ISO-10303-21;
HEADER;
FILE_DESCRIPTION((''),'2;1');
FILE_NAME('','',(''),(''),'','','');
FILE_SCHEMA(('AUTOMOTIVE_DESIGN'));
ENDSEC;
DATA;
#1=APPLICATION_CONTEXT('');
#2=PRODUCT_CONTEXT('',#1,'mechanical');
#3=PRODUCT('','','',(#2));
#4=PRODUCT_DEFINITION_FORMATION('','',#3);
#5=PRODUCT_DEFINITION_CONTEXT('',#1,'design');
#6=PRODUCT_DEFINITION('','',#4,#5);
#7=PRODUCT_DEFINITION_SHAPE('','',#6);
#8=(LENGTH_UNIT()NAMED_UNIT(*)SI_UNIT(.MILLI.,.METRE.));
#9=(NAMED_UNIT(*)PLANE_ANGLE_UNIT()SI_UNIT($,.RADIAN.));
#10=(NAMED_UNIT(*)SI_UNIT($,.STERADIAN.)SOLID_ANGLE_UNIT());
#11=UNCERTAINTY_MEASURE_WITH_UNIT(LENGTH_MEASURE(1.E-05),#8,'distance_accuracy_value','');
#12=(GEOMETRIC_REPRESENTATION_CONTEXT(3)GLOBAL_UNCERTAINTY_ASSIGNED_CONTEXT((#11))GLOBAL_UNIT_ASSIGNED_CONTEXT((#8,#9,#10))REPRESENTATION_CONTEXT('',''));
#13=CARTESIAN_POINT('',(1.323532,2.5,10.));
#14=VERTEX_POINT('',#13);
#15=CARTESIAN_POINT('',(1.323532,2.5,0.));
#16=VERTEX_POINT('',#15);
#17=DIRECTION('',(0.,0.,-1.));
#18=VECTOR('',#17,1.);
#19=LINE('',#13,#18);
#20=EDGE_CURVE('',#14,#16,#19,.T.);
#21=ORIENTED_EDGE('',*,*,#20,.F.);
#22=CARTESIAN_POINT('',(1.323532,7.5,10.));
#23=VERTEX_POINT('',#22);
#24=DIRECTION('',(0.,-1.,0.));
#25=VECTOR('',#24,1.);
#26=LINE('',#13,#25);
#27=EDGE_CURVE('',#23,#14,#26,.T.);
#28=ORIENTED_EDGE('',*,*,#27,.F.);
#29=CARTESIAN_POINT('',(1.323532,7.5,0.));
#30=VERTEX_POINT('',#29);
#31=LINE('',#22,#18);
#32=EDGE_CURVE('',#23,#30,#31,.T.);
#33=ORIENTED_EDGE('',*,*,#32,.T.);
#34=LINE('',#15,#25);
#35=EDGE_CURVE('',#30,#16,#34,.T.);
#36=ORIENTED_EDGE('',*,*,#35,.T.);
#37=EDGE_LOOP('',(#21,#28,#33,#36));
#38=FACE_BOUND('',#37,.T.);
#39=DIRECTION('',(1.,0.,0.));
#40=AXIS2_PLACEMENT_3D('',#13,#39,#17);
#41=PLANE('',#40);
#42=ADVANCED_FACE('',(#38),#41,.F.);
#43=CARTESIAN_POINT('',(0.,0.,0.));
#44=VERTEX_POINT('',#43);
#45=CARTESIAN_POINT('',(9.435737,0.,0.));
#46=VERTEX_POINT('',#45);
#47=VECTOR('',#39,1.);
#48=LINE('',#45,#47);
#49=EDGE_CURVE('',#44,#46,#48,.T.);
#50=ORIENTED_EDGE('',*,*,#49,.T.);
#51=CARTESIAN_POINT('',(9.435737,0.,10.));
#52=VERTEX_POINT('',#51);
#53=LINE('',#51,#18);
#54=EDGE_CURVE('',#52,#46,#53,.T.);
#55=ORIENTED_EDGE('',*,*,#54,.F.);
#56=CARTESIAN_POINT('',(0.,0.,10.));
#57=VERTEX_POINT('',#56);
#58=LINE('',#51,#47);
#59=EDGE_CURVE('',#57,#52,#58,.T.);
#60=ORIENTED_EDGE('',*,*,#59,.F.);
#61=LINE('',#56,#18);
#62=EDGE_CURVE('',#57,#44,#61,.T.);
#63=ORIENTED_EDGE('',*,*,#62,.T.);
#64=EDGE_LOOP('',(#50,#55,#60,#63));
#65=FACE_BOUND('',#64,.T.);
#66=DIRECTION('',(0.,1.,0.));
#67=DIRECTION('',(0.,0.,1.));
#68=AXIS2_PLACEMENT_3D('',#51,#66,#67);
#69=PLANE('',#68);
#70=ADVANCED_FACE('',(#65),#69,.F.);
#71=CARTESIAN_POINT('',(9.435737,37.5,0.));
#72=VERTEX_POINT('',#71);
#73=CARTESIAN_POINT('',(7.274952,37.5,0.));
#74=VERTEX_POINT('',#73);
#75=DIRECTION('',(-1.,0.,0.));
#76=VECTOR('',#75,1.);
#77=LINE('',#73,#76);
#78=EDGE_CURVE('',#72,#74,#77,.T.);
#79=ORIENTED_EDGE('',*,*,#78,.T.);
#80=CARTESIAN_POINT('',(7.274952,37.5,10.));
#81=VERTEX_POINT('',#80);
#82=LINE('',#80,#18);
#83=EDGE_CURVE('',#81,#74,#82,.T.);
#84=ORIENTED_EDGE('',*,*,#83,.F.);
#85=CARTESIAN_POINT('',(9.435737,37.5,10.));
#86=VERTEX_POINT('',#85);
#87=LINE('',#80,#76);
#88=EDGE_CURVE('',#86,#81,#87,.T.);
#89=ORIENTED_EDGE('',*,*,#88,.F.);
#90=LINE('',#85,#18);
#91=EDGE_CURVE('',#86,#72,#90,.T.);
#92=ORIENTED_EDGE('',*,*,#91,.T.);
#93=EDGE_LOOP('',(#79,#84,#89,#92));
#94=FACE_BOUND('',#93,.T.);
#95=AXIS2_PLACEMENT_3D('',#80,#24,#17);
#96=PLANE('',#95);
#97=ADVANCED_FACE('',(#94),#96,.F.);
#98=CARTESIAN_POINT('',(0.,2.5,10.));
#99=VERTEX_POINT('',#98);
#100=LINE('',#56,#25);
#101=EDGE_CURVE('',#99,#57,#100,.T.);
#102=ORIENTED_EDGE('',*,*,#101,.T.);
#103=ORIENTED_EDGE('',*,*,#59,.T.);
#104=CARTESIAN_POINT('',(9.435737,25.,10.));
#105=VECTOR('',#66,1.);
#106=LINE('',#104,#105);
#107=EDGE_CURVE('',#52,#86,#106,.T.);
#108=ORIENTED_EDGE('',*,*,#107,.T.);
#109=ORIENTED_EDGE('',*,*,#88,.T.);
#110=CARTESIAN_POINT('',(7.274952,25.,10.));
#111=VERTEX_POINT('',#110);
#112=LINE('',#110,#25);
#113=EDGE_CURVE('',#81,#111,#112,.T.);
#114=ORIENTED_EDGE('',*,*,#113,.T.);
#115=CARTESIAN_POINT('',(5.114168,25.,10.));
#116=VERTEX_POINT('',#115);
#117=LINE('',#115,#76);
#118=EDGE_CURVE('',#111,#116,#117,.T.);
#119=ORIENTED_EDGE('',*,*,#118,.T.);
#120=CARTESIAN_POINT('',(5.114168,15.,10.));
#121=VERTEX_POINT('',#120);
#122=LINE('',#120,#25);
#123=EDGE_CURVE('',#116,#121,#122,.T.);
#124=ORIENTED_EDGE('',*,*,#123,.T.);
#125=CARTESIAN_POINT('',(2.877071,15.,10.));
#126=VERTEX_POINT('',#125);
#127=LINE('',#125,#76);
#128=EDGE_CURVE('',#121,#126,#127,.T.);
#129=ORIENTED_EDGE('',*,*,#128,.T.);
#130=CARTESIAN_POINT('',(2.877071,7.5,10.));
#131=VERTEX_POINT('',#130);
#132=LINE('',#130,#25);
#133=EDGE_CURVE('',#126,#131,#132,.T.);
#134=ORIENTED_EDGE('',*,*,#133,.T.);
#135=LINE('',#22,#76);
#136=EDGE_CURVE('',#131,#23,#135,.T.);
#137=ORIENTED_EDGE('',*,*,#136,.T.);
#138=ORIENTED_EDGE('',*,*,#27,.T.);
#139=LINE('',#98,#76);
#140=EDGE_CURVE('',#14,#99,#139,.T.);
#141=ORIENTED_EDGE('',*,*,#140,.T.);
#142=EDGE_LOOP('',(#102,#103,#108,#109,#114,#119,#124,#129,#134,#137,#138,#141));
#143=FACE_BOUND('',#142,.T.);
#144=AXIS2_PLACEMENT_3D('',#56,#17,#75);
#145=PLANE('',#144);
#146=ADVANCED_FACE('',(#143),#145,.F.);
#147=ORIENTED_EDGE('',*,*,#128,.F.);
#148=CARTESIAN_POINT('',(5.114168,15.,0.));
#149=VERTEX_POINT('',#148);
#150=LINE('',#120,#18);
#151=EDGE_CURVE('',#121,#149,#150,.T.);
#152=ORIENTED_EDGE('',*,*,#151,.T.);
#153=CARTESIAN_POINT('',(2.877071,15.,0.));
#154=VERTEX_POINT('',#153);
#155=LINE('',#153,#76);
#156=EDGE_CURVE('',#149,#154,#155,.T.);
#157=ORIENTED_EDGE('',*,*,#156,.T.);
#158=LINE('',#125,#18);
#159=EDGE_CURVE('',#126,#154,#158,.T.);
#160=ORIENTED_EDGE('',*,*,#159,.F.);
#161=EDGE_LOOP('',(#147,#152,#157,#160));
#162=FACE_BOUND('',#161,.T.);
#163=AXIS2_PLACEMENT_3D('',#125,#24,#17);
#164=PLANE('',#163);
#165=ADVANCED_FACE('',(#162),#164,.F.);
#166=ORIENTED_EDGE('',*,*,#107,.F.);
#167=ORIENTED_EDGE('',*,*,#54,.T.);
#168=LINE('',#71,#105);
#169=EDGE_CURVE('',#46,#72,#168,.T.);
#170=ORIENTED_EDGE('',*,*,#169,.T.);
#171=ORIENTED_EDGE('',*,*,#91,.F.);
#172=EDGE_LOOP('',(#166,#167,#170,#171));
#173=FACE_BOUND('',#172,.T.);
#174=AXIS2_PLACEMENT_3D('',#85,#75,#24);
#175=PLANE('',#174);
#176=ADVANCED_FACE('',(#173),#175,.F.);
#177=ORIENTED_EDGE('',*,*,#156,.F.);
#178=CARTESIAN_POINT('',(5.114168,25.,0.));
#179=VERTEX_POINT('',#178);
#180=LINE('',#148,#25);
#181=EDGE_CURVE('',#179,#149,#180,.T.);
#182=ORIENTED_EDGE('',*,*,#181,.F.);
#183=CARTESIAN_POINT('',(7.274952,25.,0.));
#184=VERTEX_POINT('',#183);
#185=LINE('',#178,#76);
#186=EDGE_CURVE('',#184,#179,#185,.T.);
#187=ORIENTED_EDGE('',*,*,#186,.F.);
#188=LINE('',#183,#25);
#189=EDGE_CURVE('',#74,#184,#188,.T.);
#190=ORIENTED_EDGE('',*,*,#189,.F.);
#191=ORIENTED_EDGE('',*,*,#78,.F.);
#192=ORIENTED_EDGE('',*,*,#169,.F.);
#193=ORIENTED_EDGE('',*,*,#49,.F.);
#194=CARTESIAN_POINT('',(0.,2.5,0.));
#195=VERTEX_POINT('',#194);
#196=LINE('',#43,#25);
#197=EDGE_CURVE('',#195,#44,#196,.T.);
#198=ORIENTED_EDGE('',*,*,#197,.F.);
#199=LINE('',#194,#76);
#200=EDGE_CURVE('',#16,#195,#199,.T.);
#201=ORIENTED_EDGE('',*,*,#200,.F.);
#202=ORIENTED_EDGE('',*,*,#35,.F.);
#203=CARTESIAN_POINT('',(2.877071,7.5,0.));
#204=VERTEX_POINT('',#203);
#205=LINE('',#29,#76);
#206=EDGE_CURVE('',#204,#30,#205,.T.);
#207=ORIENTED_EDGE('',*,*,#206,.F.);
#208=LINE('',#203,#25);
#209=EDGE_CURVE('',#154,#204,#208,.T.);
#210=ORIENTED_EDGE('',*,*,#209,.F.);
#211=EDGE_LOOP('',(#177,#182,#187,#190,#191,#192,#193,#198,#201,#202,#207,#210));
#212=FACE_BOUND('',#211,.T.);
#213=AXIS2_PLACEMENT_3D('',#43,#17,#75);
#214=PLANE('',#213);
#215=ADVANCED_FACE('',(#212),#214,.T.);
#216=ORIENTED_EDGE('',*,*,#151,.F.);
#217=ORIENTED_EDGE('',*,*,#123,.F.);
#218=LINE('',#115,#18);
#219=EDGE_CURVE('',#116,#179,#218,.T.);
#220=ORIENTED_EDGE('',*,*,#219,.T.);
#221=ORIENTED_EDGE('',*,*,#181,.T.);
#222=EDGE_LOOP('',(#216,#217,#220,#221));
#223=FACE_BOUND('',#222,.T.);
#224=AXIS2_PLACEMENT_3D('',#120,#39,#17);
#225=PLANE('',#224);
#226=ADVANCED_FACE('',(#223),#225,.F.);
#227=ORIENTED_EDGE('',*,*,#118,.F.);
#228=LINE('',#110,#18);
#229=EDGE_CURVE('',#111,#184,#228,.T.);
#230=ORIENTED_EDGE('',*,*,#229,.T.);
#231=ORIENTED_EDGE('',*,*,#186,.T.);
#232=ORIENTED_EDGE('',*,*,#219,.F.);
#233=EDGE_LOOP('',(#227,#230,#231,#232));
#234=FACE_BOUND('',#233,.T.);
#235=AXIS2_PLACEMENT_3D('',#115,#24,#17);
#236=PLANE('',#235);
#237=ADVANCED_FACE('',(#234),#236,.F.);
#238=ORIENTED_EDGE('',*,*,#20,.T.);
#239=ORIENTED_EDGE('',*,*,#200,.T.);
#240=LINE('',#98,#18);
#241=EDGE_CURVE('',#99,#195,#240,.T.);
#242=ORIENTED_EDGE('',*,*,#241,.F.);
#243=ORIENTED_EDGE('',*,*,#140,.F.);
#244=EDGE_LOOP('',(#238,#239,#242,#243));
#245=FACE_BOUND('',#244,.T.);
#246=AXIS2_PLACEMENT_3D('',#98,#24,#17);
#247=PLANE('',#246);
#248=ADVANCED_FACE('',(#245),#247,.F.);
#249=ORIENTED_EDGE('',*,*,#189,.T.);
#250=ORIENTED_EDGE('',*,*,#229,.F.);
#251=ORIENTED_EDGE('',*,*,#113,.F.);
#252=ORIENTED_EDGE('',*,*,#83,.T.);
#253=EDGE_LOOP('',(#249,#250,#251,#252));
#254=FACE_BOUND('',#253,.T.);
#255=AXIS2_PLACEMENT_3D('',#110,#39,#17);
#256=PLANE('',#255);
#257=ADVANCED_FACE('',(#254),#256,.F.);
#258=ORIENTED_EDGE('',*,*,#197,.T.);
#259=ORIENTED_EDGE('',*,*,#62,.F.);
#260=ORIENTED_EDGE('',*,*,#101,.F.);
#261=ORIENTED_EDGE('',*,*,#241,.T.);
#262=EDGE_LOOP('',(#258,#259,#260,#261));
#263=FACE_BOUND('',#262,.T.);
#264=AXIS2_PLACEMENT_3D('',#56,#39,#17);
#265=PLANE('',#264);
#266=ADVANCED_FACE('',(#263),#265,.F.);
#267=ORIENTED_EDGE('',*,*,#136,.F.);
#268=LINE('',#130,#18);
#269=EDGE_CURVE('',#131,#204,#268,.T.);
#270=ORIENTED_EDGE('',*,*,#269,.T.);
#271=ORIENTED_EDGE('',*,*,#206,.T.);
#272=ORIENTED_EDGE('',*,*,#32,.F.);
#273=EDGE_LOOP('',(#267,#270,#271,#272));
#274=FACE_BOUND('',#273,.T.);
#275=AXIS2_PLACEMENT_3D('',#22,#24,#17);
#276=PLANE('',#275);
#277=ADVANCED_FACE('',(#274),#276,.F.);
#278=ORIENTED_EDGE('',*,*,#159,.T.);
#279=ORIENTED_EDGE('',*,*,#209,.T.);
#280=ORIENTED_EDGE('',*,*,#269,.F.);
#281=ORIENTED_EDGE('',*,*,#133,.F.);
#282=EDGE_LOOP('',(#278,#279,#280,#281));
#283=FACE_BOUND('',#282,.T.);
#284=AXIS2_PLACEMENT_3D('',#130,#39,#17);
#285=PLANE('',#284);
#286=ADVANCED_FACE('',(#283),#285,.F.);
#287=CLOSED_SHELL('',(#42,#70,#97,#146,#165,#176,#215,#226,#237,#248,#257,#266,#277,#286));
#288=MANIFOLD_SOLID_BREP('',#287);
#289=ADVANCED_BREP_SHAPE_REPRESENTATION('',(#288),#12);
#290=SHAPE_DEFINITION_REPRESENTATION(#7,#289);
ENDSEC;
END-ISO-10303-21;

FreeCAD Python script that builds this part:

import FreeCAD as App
import Part
import Sketcher

V = App.Vector
Q = App.Units.Quantity


def add_polygon(sketch, points):
    """Adds a closed chain of lines whose ends are joined by coincident constraints."""
    first, n = sketch.GeometryCount, len(points)
    for a, b in zip(points, points[1:] + points[:1]):
        sketch.addGeometry(Part.LineSegment(App.Vector(*a, 0), App.Vector(*b, 0)), False)
    for i in range(n):
        sketch.addConstraint(Sketcher.Constraint("Coincident", first + i, 2, first + (i + 1) % n, 1))

doc = App.newDocument("Part")
body = doc.addObject("PartDesign::Body", "Body")

# Sketch on XY plane
sketch1 = body.newObject("Sketcher::SketchObject", "Sketch")
sketch1.AttachmentSupport = (doc.getObject("XY_Plane"), [""])
sketch1.MapMode = "FlatFace"
add_polygon(sketch1, [(0, 2.5), (0, 0), (9.4, 0), (9.4, 37.5), (7.3, 37.5), (7.3, 25), (5.1, 25), (5.1, 15), (2.9, 15), (2.9, 7.5), (1.3, 7.5), (1.3, 2.5)])  # lines 0-11
sketch1.addConstraint([
    Sketcher.Constraint("Vertical", 0),
    Sketcher.Constraint("Horizontal", 1),
    Sketcher.Constraint("Vertical", 2),
    Sketcher.Constraint("Horizontal", 3),
    Sketcher.Constraint("Vertical", 4),
    Sketcher.Constraint("Horizontal", 5),
    Sketcher.Constraint("Vertical", 6),
    Sketcher.Constraint("Horizontal", 7),
    Sketcher.Constraint("Vertical", 8),
    Sketcher.Constraint("Horizontal", 9),
    Sketcher.Constraint("Vertical", 10),
    Sketcher.Constraint("Horizontal", 11),
    Sketcher.Constraint("Coincident", 0, 2, -1, 1),
    Sketcher.Constraint("Equal", 3, 5),
    Sketcher.Constraint("DistanceY", 6, 2, 6, 1, Q("10 mm")),
    Sketcher.Constraint("DistanceY", 10, 2, 10, 1, Q("5 mm")),
    Sketcher.Constraint("DistanceY", 0, 2, 0, 1, Q("2.5 mm")),
    Sketcher.Constraint("DistanceY", 2, 1, 2, 2, Q("37.5 mm")),
    Sketcher.Constraint("DistanceY", 4, 2, 4, 1, Q("12.5 mm")),
    Sketcher.Constraint("DistanceX", 9, 2, 9, 1, Q("1.553539 mm")),
    Sketcher.Constraint("DistanceX", 1, 1, 1, 2, Q("9.435737 mm")),
    Sketcher.Constraint("DistanceX", 3, 2, 3, 1, Q("2.160785 mm")),
    Sketcher.Constraint("DistanceX", 7, 2, 7, 1, Q("2.237096 mm")),
])
pad1 = body.newObject("PartDesign::Pad", "Pad")
pad1.Profile = sketch1
pad1.Length = 10

doc.recompute()
